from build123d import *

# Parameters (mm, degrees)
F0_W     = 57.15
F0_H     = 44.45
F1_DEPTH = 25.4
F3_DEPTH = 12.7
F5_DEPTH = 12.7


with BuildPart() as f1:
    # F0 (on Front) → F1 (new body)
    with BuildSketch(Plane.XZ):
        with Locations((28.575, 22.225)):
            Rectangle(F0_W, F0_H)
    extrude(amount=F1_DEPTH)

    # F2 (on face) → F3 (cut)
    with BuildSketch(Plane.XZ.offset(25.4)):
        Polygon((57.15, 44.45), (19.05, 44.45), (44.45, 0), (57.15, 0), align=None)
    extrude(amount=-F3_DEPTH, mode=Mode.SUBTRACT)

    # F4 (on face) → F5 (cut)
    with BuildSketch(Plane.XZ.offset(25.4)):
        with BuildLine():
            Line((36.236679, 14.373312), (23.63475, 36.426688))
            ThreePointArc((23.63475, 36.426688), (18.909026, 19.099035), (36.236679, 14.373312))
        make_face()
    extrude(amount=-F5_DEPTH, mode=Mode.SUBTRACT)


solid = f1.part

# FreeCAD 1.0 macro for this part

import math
import FreeCAD as App
import Part
import Sketcher
from FreeCAD import Vector
Q = App.Units.Quantity

doc = App.newDocument("Part")
params = doc.addObject("Spreadsheet::Sheet", "Params")
for row, (alias, value) in enumerate([
    ("sketch1_width", "2.25 in"),
    ("sketch1_height", "1.75 in"),
    ("pad1_length", "1 in"),
    ("sketch2_width", "1.5 in"),
    ("sketch2_width2", "0.5 in"),
    ("sketch2_height", "1.75 in"),
    ("pocket1_length", "0.5 in"),
    ("sketch3_radius", "0.5 in"),
    ("pocket2_length", "0.5 in"),
], start=1):
    params.set(f"A{row}", alias)
    params.set(f"B{row}", "=" + value)
    params.setAlias(f"B{row}", alias)

body = doc.addObject("PartDesign::Body", "Body")

sketch1 = doc.addObject("Sketcher::SketchObject", "Sketch")
body.addObject(sketch1)
sketch1.AttachmentSupport = (doc.XZ_Plane, [""])
sketch1.MapMode = "FlatFace"
sketch1.addGeometry([
    Part.LineSegment(Vector(0, 44, 0), Vector(0, 0, 0)),
    Part.LineSegment(Vector(0, 0, 0), Vector(57, 0, 0)),
    Part.LineSegment(Vector(57, 0, 0), Vector(57, 44, 0)),
    Part.LineSegment(Vector(57, 44, 0), Vector(0, 44, 0)),
], False)
sketch1.addConstraint([
    Sketcher.Constraint("Coincident", 0, 2, 1, 1),
    Sketcher.Constraint("Coincident", 1, 2, 2, 1),
    Sketcher.Constraint("Coincident", 2, 2, 3, 1),
    Sketcher.Constraint("Coincident", 3, 2, 0, 1),
    Sketcher.Constraint("Vertical", 0),
    Sketcher.Constraint("Horizontal", 1),
    Sketcher.Constraint("Vertical", 2),
    Sketcher.Constraint("Horizontal", 3),
    Sketcher.Constraint("Coincident", 0, 2, -1, 1),
    Sketcher.Constraint("DistanceX", 1, 1, 1, 2, Q("2.25 in")),
    Sketcher.Constraint("DistanceY", 0, 2, 0, 1, Q("1.75 in")),
])
sketch1.setExpression("Constraints[9]", "Params.sketch1_width")
sketch1.setExpression("Constraints[10]", "Params.sketch1_height")
pad1 = doc.addObject("PartDesign::Pad", "Pad")
body.addObject(pad1)
pad1.Profile = sketch1
pad1.setExpression("Length", "Params.pad1_length")

sketch2 = doc.addObject("Sketcher::SketchObject", "Sketch001")
body.addObject(sketch2)
sketch2.AttachmentSupport = (doc.XZ_Plane, [""])
sketch2.MapMode = "FlatFace"
sketch2.AttachmentOffset = App.Placement(Vector(0, 0, 1 * 25.4), App.Rotation())
sketch2.addGeometry([
    Part.LineSegment(Vector(57, 44, 0), Vector(19, 44, 0)),
    Part.LineSegment(Vector(19, 44, 0), Vector(44, 0, 0)),
    Part.LineSegment(Vector(44, 0, 0), Vector(57, 0, 0)),
    Part.LineSegment(Vector(57, 0, 0), Vector(57, 44, 0)),
], False)
sketch2.addConstraint([
    Sketcher.Constraint("Coincident", 0, 2, 1, 1),
    Sketcher.Constraint("Coincident", 1, 2, 2, 1),
    Sketcher.Constraint("Coincident", 2, 2, 3, 1),
    Sketcher.Constraint("Coincident", 3, 2, 0, 1),
    Sketcher.Constraint("Horizontal", 0),
    Sketcher.Constraint("Horizontal", 2),
    Sketcher.Constraint("Vertical", 3),
    Sketcher.Constraint("PointOnObject", 1, 2, -1),
    Sketcher.Constraint("DistanceX", 0, 2, 0, 1, Q("1.5 in")),
    Sketcher.Constraint("DistanceX", 2, 1, 2, 2, Q("0.5 in")),
    Sketcher.Constraint("DistanceY", 3, 1, 3, 2, Q("1.75 in")),
    Sketcher.Constraint("DistanceX", -1, 1, 0, 2, Q("0.75 in")),
])
sketch2.setExpression("Constraints[8]", "Params.sketch2_width")
sketch2.setExpression("Constraints[9]", "Params.sketch2_width2")
sketch2.setExpression("Constraints[10]", "Params.sketch2_height")
pocket1 = doc.addObject("PartDesign::Pocket", "Pocket")
body.addObject(pocket1)
pocket1.Profile = sketch2
pocket1.setExpression("Length", "Params.pocket1_length")

sketch3 = doc.addObject("Sketcher::SketchObject", "Sketch002")
body.addObject(sketch3)
sketch3.AttachmentSupport = (doc.XZ_Plane, [""])
sketch3.MapMode = "FlatFace"
sketch3.AttachmentOffset = App.Placement(Vector(0, 0, 1 * 25.4), App.Rotation())
sketch3.addGeometry([
    Part.LineSegment(Vector(36, 14, 0), Vector(24, 36, 0)),
    Part.ArcOfCircle(Part.Circle(Vector(30, 25, 0), Vector(0, 0, 1), 13), math.radians(120), math.radians(300)),
], False)
sketch3.addConstraint([
    Sketcher.Constraint("Coincident", 0, 1, 1, 2),
    Sketcher.Constraint("Coincident", 1, 1, 0, 2),
    Sketcher.Constraint("Radius", 1, Q("0.5 in")),
    Sketcher.Constraint("DistanceY", -1, 1, 1, 3, Q("1 in")),
    Sketcher.Constraint("DistanceX", -1, 1, 0, 1, Q("36.236679 mm")),
    Sketcher.Constraint("DistanceX", -1, 1, 1, 1, Q("23.63475 mm")),
    Sketcher.Constraint("DistanceY", -1, 1, 1, 1, Q("36.426688 mm")),
])
sketch3.setExpression("Constraints[2]", "Params.sketch3_radius")
pocket2 = doc.addObject("PartDesign::Pocket", "Pocket001")
body.addObject(pocket2)
pocket2.Profile = sketch3
pocket2.setExpression("Length", "Params.pocket2_length")

doc.recompute()
